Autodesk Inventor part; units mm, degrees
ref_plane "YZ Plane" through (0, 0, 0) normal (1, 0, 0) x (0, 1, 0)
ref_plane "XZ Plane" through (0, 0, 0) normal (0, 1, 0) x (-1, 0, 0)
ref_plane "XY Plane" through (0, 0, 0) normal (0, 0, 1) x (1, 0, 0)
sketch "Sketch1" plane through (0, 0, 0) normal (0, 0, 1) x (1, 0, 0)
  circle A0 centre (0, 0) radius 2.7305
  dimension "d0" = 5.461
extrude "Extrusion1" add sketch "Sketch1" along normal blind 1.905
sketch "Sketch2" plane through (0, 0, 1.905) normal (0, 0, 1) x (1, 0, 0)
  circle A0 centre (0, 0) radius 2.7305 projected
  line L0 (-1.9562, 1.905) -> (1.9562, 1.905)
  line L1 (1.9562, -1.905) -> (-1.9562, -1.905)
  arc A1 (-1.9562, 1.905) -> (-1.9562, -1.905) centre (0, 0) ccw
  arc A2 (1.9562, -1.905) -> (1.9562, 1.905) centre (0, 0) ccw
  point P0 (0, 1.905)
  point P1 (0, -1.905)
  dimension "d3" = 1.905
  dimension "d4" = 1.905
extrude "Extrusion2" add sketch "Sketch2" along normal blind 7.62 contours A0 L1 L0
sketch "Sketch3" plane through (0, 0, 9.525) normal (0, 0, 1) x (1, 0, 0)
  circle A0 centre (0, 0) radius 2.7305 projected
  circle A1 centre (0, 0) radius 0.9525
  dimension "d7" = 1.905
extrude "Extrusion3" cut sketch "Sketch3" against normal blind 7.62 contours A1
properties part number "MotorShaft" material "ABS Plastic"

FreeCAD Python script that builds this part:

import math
import FreeCAD as App
import Part
import Sketcher
Q = App.Units.Quantity

doc = App.newDocument("Part")
body = doc.addObject("PartDesign::Body", "Body")

sketch1 = doc.addObject("Sketcher::SketchObject", "Sketch")
body.addObject(sketch1)
sketch1.AttachmentSupport = (doc.XY_Plane, [""])
sketch1.MapMode = "FlatFace"
sketch1.addGeometry(Part.Circle(App.Vector(0, 0, 0), App.Vector(0, 0, 1), 2.7305), False)
sketch1.addConstraint([
    Sketcher.Constraint("Coincident", 0, 3, -1, 1),
    Sketcher.Constraint("Diameter", 0, Q("0.215 in")),
])
pad1 = doc.addObject("PartDesign::Pad", "Pad")
body.addObject(pad1)
pad1.Profile = sketch1
pad1.Length = Q("0.075 in")

sketch2 = doc.addObject("Sketcher::SketchObject", "Sketch001")
body.addObject(sketch2)
sketch2.AttachmentSupport = (doc.XY_Plane, [""])
sketch2.MapMode = "FlatFace"
sketch2.AttachmentOffset = App.Placement(App.Vector(0, 0, 0.075 * 25.4), App.Rotation())
sketch2.addGeometry([
    Part.ArcOfCircle(Part.Circle(App.Vector(0, 0, 0), App.Vector(0, 0, 1), 2.7305), math.radians(-44.240295), math.radians(44.240295)),
    Part.LineSegment(App.Vector(1.9562, 1.905, 0), App.Vector(-1.9562, 1.905, 0)),
    Part.ArcOfCircle(Part.Circle(App.Vector(0, 0, 0), App.Vector(0, 0, 1), 2.7305), math.radians(135.759705), math.radians(224.240295)),
    Part.LineSegment(App.Vector(-1.9562, -1.905, 0), App.Vector(1.9562, -1.905, 0)),
], False)
sketch2.addConstraint([
    Sketcher.Constraint("Coincident", 0, 2, 1, 1),
    Sketcher.Constraint("Coincident", 1, 2, 2, 1),
    Sketcher.Constraint("Coincident", 2, 2, 3, 1),
    Sketcher.Constraint("Coincident", 3, 2, 0, 1),
    Sketcher.Constraint("Horizontal", 1),
    Sketcher.Constraint("Horizontal", 3),
    Sketcher.Constraint("Coincident", 0, 3, -1, 1),
    Sketcher.Constraint("Coincident", 2, 3, -1, 1),
    Sketcher.Constraint("Equal", 0, 2),
    Sketcher.Constraint("Vertical", 1, 2, 2, 2),
    Sketcher.Constraint("DistanceY", -1, 1, 0, 2, Q("0.075 in")),
    Sketcher.Constraint("Radius", 0, Q("0.1075 in")),
])
pad2 = doc.addObject("PartDesign::Pad", "Pad001")
body.addObject(pad2)
pad2.Profile = sketch2
pad2.Length = Q("0.3 in")

sketch3 = doc.addObject("Sketcher::SketchObject", "Sketch002")
body.addObject(sketch3)
sketch3.AttachmentSupport = (doc.XY_Plane, [""])
sketch3.MapMode = "FlatFace"
sketch3.AttachmentOffset = App.Placement(App.Vector(0, 0, 0.375 * 25.4), App.Rotation())
sketch3.addGeometry(Part.Circle(App.Vector(0, 0, 0), App.Vector(0, 0, 1), 0.9525), False)
sketch3.addConstraint([
    Sketcher.Constraint("Coincident", 0, 3, -1, 1),
    Sketcher.Constraint("Diameter", 0, Q("0.075 in")),
])
pocket1 = doc.addObject("PartDesign::Pocket", "Pocket")
body.addObject(pocket1)
pocket1.Profile = sketch3
pocket1.Length = Q("0.3 in")

doc.recompute()
